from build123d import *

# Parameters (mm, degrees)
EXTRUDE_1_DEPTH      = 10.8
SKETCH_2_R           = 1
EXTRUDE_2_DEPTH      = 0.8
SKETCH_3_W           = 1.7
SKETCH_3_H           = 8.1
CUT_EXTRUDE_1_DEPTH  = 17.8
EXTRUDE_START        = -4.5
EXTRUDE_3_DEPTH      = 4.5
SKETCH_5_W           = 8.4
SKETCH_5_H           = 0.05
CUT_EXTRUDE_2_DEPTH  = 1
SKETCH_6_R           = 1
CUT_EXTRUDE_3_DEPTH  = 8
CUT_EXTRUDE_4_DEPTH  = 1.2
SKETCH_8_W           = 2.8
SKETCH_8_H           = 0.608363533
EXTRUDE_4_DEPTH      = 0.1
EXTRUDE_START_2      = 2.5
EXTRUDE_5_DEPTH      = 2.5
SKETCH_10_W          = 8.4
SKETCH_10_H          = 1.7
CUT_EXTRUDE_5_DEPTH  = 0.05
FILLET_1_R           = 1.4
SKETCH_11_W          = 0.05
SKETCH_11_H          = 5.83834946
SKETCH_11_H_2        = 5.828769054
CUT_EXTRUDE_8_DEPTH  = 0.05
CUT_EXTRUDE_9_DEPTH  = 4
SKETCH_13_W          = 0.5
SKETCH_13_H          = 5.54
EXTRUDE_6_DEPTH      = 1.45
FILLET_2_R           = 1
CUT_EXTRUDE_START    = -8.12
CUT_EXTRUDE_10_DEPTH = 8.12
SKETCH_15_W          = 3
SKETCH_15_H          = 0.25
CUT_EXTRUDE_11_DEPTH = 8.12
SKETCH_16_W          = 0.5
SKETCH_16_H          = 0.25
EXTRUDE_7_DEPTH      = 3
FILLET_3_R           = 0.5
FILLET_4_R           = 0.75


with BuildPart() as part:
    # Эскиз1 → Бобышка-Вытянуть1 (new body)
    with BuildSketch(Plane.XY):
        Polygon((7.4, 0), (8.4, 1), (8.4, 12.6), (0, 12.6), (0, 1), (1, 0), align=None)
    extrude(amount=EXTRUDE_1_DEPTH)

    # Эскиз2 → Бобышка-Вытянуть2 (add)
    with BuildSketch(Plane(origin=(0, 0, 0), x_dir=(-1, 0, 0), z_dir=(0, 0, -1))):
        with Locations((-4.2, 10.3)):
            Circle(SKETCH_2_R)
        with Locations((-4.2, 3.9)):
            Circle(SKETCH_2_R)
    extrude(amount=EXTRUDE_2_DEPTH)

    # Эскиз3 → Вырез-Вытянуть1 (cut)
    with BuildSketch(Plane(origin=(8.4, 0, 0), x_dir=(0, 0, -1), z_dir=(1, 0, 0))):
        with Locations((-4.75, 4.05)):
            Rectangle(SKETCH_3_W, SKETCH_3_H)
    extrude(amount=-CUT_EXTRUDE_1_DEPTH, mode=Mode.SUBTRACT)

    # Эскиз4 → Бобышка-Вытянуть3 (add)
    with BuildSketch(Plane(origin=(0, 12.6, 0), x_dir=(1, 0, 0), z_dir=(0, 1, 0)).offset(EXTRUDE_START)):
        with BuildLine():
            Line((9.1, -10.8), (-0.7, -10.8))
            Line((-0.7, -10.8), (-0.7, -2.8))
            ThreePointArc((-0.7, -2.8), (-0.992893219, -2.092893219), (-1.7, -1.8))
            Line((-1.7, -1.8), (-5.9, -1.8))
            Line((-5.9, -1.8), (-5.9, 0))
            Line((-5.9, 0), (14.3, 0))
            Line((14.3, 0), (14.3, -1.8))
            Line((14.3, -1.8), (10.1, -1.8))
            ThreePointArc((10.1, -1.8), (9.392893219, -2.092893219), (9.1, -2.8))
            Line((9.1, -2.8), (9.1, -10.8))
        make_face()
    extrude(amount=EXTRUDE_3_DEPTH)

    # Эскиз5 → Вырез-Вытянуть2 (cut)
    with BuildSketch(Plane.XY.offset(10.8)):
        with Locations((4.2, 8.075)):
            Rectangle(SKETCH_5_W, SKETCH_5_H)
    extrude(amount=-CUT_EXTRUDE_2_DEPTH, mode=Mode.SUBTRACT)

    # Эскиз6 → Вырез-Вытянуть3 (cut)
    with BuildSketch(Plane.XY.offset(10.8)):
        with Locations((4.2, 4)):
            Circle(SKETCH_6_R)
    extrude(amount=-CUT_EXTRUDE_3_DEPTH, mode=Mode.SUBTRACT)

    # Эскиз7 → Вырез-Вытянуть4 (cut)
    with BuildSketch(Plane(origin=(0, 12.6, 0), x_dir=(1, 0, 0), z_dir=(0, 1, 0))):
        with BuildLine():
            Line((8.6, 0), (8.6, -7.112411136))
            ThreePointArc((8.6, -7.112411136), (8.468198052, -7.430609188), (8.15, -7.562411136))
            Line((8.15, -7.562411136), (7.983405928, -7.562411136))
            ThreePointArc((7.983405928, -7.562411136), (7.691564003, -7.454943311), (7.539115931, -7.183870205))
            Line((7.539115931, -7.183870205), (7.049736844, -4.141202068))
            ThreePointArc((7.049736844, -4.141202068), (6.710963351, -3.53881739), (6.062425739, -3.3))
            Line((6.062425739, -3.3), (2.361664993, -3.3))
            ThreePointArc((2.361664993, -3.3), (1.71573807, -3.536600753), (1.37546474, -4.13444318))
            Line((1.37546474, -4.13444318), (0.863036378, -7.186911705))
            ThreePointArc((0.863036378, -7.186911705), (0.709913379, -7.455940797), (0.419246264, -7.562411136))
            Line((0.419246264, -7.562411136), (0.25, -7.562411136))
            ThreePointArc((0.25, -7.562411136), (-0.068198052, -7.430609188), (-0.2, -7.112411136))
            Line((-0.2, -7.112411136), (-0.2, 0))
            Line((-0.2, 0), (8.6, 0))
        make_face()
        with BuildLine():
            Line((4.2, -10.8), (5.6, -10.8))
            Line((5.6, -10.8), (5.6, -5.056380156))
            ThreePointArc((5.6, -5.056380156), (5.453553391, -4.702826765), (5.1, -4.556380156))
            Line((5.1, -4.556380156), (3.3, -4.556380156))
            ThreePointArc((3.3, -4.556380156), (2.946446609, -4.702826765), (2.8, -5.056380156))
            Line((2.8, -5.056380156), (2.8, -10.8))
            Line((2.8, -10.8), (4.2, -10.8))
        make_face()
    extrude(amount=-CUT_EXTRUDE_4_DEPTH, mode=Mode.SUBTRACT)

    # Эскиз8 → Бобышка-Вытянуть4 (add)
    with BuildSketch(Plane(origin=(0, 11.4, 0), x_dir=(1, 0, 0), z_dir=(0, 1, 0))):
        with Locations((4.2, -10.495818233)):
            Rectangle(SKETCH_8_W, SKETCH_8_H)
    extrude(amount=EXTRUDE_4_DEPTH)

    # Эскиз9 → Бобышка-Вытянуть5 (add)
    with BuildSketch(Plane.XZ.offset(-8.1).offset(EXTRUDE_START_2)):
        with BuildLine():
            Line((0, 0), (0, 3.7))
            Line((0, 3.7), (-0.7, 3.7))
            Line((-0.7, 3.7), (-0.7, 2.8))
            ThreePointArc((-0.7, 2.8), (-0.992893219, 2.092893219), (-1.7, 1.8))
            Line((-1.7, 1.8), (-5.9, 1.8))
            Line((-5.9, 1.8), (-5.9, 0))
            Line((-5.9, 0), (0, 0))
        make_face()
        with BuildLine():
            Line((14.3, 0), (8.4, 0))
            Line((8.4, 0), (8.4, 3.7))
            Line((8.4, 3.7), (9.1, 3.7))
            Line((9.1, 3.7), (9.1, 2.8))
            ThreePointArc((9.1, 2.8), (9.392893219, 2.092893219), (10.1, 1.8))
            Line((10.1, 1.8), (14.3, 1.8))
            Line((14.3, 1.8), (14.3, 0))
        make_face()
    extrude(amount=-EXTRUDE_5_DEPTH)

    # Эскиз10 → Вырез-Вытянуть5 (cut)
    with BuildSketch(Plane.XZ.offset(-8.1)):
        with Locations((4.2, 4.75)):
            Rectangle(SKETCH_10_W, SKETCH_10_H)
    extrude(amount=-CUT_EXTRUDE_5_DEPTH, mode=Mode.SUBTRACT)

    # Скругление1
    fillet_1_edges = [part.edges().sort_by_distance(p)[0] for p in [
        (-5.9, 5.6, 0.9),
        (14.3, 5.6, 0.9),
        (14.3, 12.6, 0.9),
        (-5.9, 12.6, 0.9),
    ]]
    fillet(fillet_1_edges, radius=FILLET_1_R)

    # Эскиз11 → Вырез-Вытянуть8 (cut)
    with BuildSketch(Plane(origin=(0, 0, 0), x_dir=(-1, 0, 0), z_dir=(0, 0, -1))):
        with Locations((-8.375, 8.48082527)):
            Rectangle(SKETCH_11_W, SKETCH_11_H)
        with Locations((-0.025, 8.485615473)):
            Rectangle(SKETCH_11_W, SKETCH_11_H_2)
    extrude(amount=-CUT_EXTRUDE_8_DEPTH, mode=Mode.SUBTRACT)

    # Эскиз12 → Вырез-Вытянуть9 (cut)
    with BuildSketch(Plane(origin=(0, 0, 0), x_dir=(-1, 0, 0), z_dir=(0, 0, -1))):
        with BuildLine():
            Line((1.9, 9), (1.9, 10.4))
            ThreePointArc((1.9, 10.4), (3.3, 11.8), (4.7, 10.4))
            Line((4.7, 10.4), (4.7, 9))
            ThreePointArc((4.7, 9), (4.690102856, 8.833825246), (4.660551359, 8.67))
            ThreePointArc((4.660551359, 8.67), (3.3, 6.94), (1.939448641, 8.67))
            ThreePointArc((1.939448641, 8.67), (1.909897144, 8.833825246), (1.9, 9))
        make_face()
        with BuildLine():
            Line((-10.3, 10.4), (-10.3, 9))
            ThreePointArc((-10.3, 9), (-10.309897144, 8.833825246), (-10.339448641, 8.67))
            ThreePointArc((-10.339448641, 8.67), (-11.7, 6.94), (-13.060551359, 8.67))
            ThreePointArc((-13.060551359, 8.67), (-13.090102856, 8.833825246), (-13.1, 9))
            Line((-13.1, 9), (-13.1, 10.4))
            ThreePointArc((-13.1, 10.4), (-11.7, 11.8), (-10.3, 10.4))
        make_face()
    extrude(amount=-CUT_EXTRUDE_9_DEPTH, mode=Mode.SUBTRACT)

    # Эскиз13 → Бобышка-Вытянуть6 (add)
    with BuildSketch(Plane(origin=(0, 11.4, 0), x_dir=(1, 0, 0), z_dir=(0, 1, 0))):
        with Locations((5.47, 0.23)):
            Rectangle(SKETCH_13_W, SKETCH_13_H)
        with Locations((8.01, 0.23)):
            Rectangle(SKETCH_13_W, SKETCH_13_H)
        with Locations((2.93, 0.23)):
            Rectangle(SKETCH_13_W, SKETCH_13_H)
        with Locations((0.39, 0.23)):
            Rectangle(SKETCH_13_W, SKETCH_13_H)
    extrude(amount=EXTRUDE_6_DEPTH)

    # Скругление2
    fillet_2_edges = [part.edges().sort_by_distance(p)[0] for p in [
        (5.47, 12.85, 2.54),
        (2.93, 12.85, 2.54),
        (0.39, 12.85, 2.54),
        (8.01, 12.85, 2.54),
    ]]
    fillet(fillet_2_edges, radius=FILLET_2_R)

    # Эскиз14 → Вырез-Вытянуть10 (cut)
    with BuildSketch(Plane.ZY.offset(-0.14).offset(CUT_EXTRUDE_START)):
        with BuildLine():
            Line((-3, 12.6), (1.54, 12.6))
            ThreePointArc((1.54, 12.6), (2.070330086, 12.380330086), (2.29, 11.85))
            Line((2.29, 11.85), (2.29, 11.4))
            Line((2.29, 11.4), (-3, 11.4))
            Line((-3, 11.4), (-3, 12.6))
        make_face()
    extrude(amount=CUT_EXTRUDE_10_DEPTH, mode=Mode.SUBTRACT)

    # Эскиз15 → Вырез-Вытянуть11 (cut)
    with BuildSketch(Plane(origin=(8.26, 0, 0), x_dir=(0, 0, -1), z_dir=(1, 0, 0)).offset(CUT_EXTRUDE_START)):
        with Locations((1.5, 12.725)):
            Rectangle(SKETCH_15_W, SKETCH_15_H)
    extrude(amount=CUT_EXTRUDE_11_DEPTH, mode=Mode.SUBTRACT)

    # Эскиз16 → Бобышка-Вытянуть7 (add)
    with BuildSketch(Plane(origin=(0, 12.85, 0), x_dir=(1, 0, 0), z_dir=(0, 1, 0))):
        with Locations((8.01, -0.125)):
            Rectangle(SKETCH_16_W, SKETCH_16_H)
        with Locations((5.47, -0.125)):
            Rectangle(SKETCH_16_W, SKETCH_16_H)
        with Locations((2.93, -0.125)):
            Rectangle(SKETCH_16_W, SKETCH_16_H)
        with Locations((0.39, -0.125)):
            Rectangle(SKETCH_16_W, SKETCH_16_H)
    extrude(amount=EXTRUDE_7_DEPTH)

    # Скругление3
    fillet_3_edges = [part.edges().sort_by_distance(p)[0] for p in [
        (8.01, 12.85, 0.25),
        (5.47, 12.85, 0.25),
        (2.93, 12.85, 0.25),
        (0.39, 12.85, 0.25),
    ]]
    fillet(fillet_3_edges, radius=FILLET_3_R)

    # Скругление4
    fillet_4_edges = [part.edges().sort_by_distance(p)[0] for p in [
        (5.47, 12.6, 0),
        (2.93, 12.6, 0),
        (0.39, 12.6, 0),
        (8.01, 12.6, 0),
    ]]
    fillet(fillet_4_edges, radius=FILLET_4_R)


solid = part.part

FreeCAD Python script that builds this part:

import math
import FreeCAD as App
import Part
import Sketcher

V = App.Vector
Q = App.Units.Quantity


def edges_at(feature, points):
    """Names of the edges that pass closest to the given points."""
    edges = feature.Shape.Edges
    near = lambda p: min(range(len(edges)), key=lambda i: edges[i].distToShape(Part.Vertex(*p))[0])
    return sorted({f"Edge{near(p) + 1}" for p in points})

doc = App.newDocument("Part")
body = doc.addObject("PartDesign::Body", "Body")

# Sketch on XY plane
sketch1 = doc.addObject("Sketcher::SketchObject", "Sketch")
body.addObject(sketch1)
sketch1.AttachmentSupport = (doc.XY_Plane, [""])
sketch1.MapMode = "FlatFace"
sketch1.addGeometry([
    Part.LineSegment(V(7.4, 0, 0), V(8.4, 1, 0)),  # 0
    Part.LineSegment(V(8.4, 1, 0), V(8.4, 12.6, 0)),  # 1
    Part.LineSegment(V(8.4, 12.6, 0), V(0, 12.6, 0)),  # 2
    Part.LineSegment(V(0, 12.6, 0), V(0, 1, 0)),  # 3
    Part.LineSegment(V(0, 1, 0), V(1, 0, 0)),  # 4
    Part.LineSegment(V(1, 0, 0), V(7.4, 0, 0)),  # 5
], False)
sketch1.addConstraint([
    Sketcher.Constraint("Coincident", 0, 2, 1, 1),
    Sketcher.Constraint("Coincident", 1, 2, 2, 1),
    Sketcher.Constraint("Coincident", 2, 2, 3, 1),
    Sketcher.Constraint("Coincident", 3, 2, 4, 1),
    Sketcher.Constraint("Coincident", 4, 2, 5, 1),
    Sketcher.Constraint("Coincident", 5, 2, 0, 1),
    Sketcher.Constraint("Vertical", 1),
    Sketcher.Constraint("Horizontal", 2),
    Sketcher.Constraint("Vertical", 3),
    Sketcher.Constraint("Horizontal", 5),
    Sketcher.Constraint("PointOnObject", 2, 2, -2),
    Sketcher.Constraint("PointOnObject", 4, 2, -1),
    Sketcher.Constraint("Perpendicular", 0, 4),
    Sketcher.Constraint("Horizontal", 0, 2, 3, 2),
    Sketcher.Constraint("Equal", 0, 4),
    Sketcher.Constraint("DistanceX", 2, 2, 2, 1, Q("8.4 mm")),
    Sketcher.Constraint("DistanceX", 5, 1, 5, 2, Q("6.4 mm")),
    Sketcher.Constraint("DistanceY", 1, 1, 1, 2, Q("11.6 mm")),
])
pad1 = doc.addObject("PartDesign::Pad", "Pad")
body.addObject(pad1)
pad1.Profile = sketch1
pad1.Length = 10.8

# Sketch on XY plane
sketch2 = doc.addObject("Sketcher::SketchObject", "Sketch001")
body.addObject(sketch2)
sketch2.AttachmentSupport = (doc.XY_Plane, [""])
sketch2.MapMode = "FlatFace"
sketch2.addGeometry([
    Part.Circle(V(4.2, 10.3, 0), V(0, 0, 1), 1),
    Part.Circle(V(4.2, 3.9, 0), V(0, 0, 1), 1),
], False)
sketch2.addConstraint([
    Sketcher.Constraint("Equal", 0, 1),
    Sketcher.Constraint("Vertical", 0, 3, 1, 3),
    Sketcher.Constraint("Diameter", 0, Q("2 mm")),
    Sketcher.Constraint("DistanceX", -1, 1, 0, 3, Q("4.2 mm")),
    Sketcher.Constraint("DistanceY", -1, 1, 0, 3, Q("10.3 mm")),
    Sketcher.Constraint("DistanceY", -1, 1, 1, 3, Q("3.9 mm")),
])
pad2 = doc.addObject("PartDesign::Pad", "Pad001")
body.addObject(pad2)
pad2.Profile = sketch2
pad2.Length = 0.8
pad2.Reversed = True

# Sketch on YZ plane
sketch3 = doc.addObject("Sketcher::SketchObject", "Sketch002")
body.addObject(sketch3)
sketch3.AttachmentSupport = (doc.YZ_Plane, [""])
sketch3.MapMode = "FlatFace"
sketch3.AttachmentOffset = App.Placement(V(0, 0, 8.4), App.Rotation())
sketch3.addGeometry([
    Part.LineSegment(V(8.1, 5.6, 0), V(0, 5.6, 0)),
    Part.LineSegment(V(0, 5.6, 0), V(0, 3.9, 0)),
    Part.LineSegment(V(0, 3.9, 0), V(8.1, 3.9, 0)),
    Part.LineSegment(V(8.1, 3.9, 0), V(8.1, 5.6, 0)),
], False)
sketch3.addConstraint([
    Sketcher.Constraint("Coincident", 0, 2, 1, 1),
    Sketcher.Constraint("Coincident", 1, 2, 2, 1),
    Sketcher.Constraint("Coincident", 2, 2, 3, 1),
    Sketcher.Constraint("Coincident", 3, 2, 0, 1),
    Sketcher.Constraint("Horizontal", 0),
    Sketcher.Constraint("Vertical", 1),
    Sketcher.Constraint("Horizontal", 2),
    Sketcher.Constraint("Vertical", 3),
    Sketcher.Constraint("PointOnObject", 0, 2, -2),
    Sketcher.Constraint("DistanceX", 0, 2, 0, 1, Q("8.1 mm")),
    Sketcher.Constraint("DistanceY", 1, 2, 1, 1, Q("1.7 mm")),
    Sketcher.Constraint("DistanceY", -1, 1, 0, 2, Q("5.6 mm")),
])
pocket1 = doc.addObject("PartDesign::Pocket", "Pocket")
body.addObject(pocket1)
pocket1.Profile = sketch3
pocket1.Length = 17.8

# Sketch on XZ plane
sketch4 = doc.addObject("Sketcher::SketchObject", "Sketch003")
body.addObject(sketch4)
sketch4.AttachmentSupport = (doc.XZ_Plane, [""])
sketch4.MapMode = "FlatFace"
sketch4.AttachmentOffset = App.Placement(V(0, 0, -8.1), App.Rotation())
sketch4.addGeometry([
    Part.LineSegment(V(-0.7, 10.8, 0), V(9.1, 10.8, 0)),  # 0
    Part.LineSegment(V(9.1, 10.8, 0), V(9.1, 2.8, 0)),  # 1
    Part.ArcOfCircle(Part.Circle(V(10.1, 2.8, 0), V(0, 0, 1), 1), math.radians(-180), math.radians(-90)),  # 2
    Part.LineSegment(V(10.1, 1.8, 0), V(14.3, 1.8, 0)),  # 3
    Part.LineSegment(V(14.3, 1.8, 0), V(14.3, 0, 0)),  # 4
    Part.LineSegment(V(14.3, 0, 0), V(-5.9, 0, 0)),  # 5
    Part.LineSegment(V(-5.9, 0, 0), V(-5.9, 1.8, 0)),  # 6
    Part.LineSegment(V(-5.9, 1.8, 0), V(-1.7, 1.8, 0)),  # 7
    Part.ArcOfCircle(Part.Circle(V(-1.7, 2.8, 0), V(0, 0, 1), 1), math.radians(-90), math.radians(0)),  # 8
    Part.LineSegment(V(-0.7, 2.8, 0), V(-0.7, 10.8, 0)),  # 9
], False)
sketch4.addConstraint([
    Sketcher.Constraint("Coincident", 0, 2, 1, 1),
    Sketcher.Constraint("Tangent", 1, 2, 2, 1),
    Sketcher.Constraint("Tangent", 2, 2, 3, 1),
    Sketcher.Constraint("Coincident", 3, 2, 4, 1),
    Sketcher.Constraint("Coincident", 4, 2, 5, 1),
    Sketcher.Constraint("Coincident", 5, 2, 6, 1),
    Sketcher.Constraint("Coincident", 6, 2, 7, 1),
    Sketcher.Constraint("Tangent", 7, 2, 8, 1),
    Sketcher.Constraint("Tangent", 8, 2, 9, 1),
    Sketcher.Constraint("Coincident", 9, 2, 0, 1),
    Sketcher.Constraint("Horizontal", 0),
    Sketcher.Constraint("Vertical", 1),
    Sketcher.Constraint("Horizontal", 3),
    Sketcher.Constraint("Vertical", 4),
    Sketcher.Constraint("Horizontal", 5),
    Sketcher.Constraint("Vertical", 6),
    Sketcher.Constraint("Horizontal", 7),
    Sketcher.Constraint("Vertical", 9),
    Sketcher.Constraint("Equal", 2, 8),
    Sketcher.Constraint("PointOnObject", 4, 2, -1),
    Sketcher.Constraint("Horizontal", 2, 3, 8, 3),
    Sketcher.Constraint("Equal", 3, 7),
    Sketcher.Constraint("Radius", 2, Q("1 mm")),
    Sketcher.Constraint("DistanceY", 1, 2, 1, 1, Q("8 mm")),
    Sketcher.Constraint("DistanceX", 0, 1, 0, 2, Q("9.8 mm")),
    Sketcher.Constraint("DistanceX", 3, 1, 3, 2, Q("4.2 mm")),
    Sketcher.Constraint("DistanceY", 4, 2, 4, 1, Q("1.8 mm")),
    Sketcher.Constraint("DistanceX", -1, 1, 2, 3, Q("10.1 mm")),
])
pad3 = doc.addObject("PartDesign::Pad", "Pad002")
body.addObject(pad3)
pad3.Profile = sketch4
pad3.Length = 4.5
pad3.Reversed = True

# Sketch on XY plane
sketch5 = doc.addObject("Sketcher::SketchObject", "Sketch004")
body.addObject(sketch5)
sketch5.AttachmentSupport = (doc.XY_Plane, [""])
sketch5.MapMode = "FlatFace"
sketch5.AttachmentOffset = App.Placement(V(0, 0, 10.8), App.Rotation())
sketch5.addGeometry([
    Part.LineSegment(V(0, 8.1, 0), V(0, 8.05, 0)),
    Part.LineSegment(V(0, 8.05, 0), V(8.4, 8.05, 0)),
    Part.LineSegment(V(8.4, 8.05, 0), V(8.4, 8.1, 0)),
    Part.LineSegment(V(8.4, 8.1, 0), V(0, 8.1, 0)),
], False)
sketch5.addConstraint([
    Sketcher.Constraint("Coincident", 0, 2, 1, 1),
    Sketcher.Constraint("Coincident", 1, 2, 2, 1),
    Sketcher.Constraint("Coincident", 2, 2, 3, 1),
    Sketcher.Constraint("Coincident", 3, 2, 0, 1),
    Sketcher.Constraint("Vertical", 0),
    Sketcher.Constraint("Horizontal", 1),
    Sketcher.Constraint("Vertical", 2),
    Sketcher.Constraint("Horizontal", 3),
    Sketcher.Constraint("PointOnObject", 0, 2, -2),
    Sketcher.Constraint("DistanceX", 1, 1, 1, 2, Q("8.4 mm")),
    Sketcher.Constraint("DistanceY", 0, 2, 0, 1, Q("0.05 mm")),
    Sketcher.Constraint("DistanceY", -1, 1, 2, 2, Q("8.1 mm")),
])
pocket2 = doc.addObject("PartDesign::Pocket", "Pocket001")
body.addObject(pocket2)
pocket2.Profile = sketch5
pocket2.Length = 1

# Sketch on XY plane
sketch6 = doc.addObject("Sketcher::SketchObject", "Sketch005")
body.addObject(sketch6)
sketch6.AttachmentSupport = (doc.XY_Plane, [""])
sketch6.MapMode = "FlatFace"
sketch6.AttachmentOffset = App.Placement(V(0, 0, 10.8), App.Rotation())
sketch6.addGeometry(Part.Circle(V(4.2, 4, 0), V(0, 0, 1), 1), False)
sketch6.addConstraint([
    Sketcher.Constraint("Diameter", 0, Q("2 mm")),
    Sketcher.Constraint("DistanceY", -1, 1, 0, 3, Q("4 mm")),
    Sketcher.Constraint("DistanceX", -1, 1, 0, 3, Q("4.2 mm")),
])
pocket3 = doc.addObject("PartDesign::Pocket", "Pocket002")
body.addObject(pocket3)
pocket3.Profile = sketch6
pocket3.Length = 8

# Sketch on XZ plane
sketch7 = doc.addObject("Sketcher::SketchObject", "Sketch006")
body.addObject(sketch7)
sketch7.AttachmentSupport = (doc.XZ_Plane, [""])
sketch7.MapMode = "FlatFace"
sketch7.AttachmentOffset = App.Placement(V(0, 0, -12.6), App.Rotation())
sketch7.addGeometry([
    Part.LineSegment(V(8.6, 7.11, 0), V(8.6, 0, 0)),  # 0
    Part.LineSegment(V(8.6, 0, 0), V(-0.2, 0, 0)),  # 1
    Part.LineSegment(V(-0.2, 0, 0), V(-0.2, 7.11, 0)),  # 2
    Part.ArcOfCircle(Part.Circle(V(0.25, 7.11, 0), V(0, 0, 1), 0.45), math.radians(90), math.radians(180)),  # 3
    Part.LineSegment(V(0.25, 7.56, 0), V(0.42, 7.56, 0)),  # 4
    Part.ArcOfCircle(Part.Circle(V(0.42, 7.11, 0), V(0, 0, 1), 0.45), math.radians(10), math.radians(90)),  # 5
    Part.LineSegment(V(0.86, 7.19, 0), V(1.38, 4.13, 0)),  # 6
    Part.ArcOfCircle(Part.Circle(V(2.36, 4.3, 0), V(0, 0, 1), 1), math.radians(-170), math.radians(-90)),  # 7
    Part.LineSegment(V(2.36, 3.3, 0), V(6.06, 3.3, 0)),  # 8
    Part.ArcOfCircle(Part.Circle(V(6.06, 4.3, 0), V(0, 0, 1), 1), math.radians(-90), math.radians(-9)),  # 9
    Part.LineSegment(V(7.05, 4.14, 0), V(7.54, 7.18, 0)),  # 10
    Part.ArcOfCircle(Part.Circle(V(7.98, 7.11, 0), V(0, 0, 1), 0.45), math.radians(90), math.radians(171)),  # 11
    Part.LineSegment(V(7.98, 7.56, 0), V(8.15, 7.56, 0)),  # 12
    Part.ArcOfCircle(Part.Circle(V(8.15, 7.11, 0), V(0, 0, 1), 0.45), math.radians(0), math.radians(90)),  # 13
    Part.LineSegment(V(5.6, 10.8, 0), V(5.6, 5.06, 0)),  # 14
    Part.ArcOfCircle(Part.Circle(V(5.1, 5.06, 0), V(0, 0, 1), 0.5), math.radians(-90), math.radians(0)),  # 15
    Part.LineSegment(V(5.1, 4.56, 0), V(3.3, 4.56, 0)),  # 16
    Part.ArcOfCircle(Part.Circle(V(3.3, 5.06, 0), V(0, 0, 1), 0.5), math.radians(180), math.radians(270)),  # 17
    Part.LineSegment(V(2.8, 5.06, 0), V(2.8, 10.8, 0)),  # 18
    Part.LineSegment(V(2.8, 10.8, 0), V(5.6, 10.8, 0)),  # 19
], False)
sketch7.addConstraint([
    Sketcher.Constraint("Coincident", 0, 2, 1, 1),
    Sketcher.Constraint("Coincident", 1, 2, 2, 1),
    Sketcher.Constraint("Tangent", 2, 2, 3, 2),
    Sketcher.Constraint("Tangent", 3, 1, 4, 1),
    Sketcher.Constraint("Tangent", 4, 2, 5, 2),
    Sketcher.Constraint("Tangent", 5, 1, 6, 1),
    Sketcher.Constraint("Tangent", 6, 2, 7, 1),
    Sketcher.Constraint("Tangent", 7, 2, 8, 1),
    Sketcher.Constraint("Tangent", 8, 2, 9, 1),
    Sketcher.Constraint("Tangent", 9, 2, 10, 1),
    Sketcher.Constraint("Tangent", 10, 2, 11, 2),
    Sketcher.Constraint("Tangent", 11, 1, 12, 1),
    Sketcher.Constraint("Tangent", 12, 2, 13, 2),
    Sketcher.Constraint("Tangent", 13, 1, 0, 1),
    Sketcher.Constraint("Tangent", 14, 2, 15, 2),
    Sketcher.Constraint("Tangent", 15, 1, 16, 1),
    Sketcher.Constraint("Tangent", 16, 2, 17, 2),
    Sketcher.Constraint("Tangent", 17, 1, 18, 1),
    Sketcher.Constraint("Coincident", 18, 2, 19, 1),
    Sketcher.Constraint("Coincident", 19, 2, 14, 1),
    Sketcher.Constraint("Vertical", 0),
    Sketcher.Constraint("Horizontal", 1),
    Sketcher.Constraint("Vertical", 2),
    Sketcher.Constraint("Horizontal", 4),
    Sketcher.Constraint("Horizontal", 8),
    Sketcher.Constraint("Horizontal", 12),
    Sketcher.Constraint("Vertical", 14),
    Sketcher.Constraint("Horizontal", 16),
    Sketcher.Constraint("Vertical", 18),
    Sketcher.Constraint("Horizontal", 19),
    Sketcher.Constraint("Equal", 3, 5),
    Sketcher.Constraint("Equal", 7, 9),
    Sketcher.Constraint("Equal", 5, 11),
    Sketcher.Constraint("Equal", 11, 13),
    Sketcher.Constraint("Equal", 15, 17),
    Sketcher.Constraint("PointOnObject", 0, 2, -1),
    Sketcher.Constraint("Horizontal", 5, 3, 11, 3),
    Sketcher.Constraint("Radius", 7, Q("1 mm")),
    Sketcher.Constraint("Radius", 15, Q("0.5 mm")),
    Sketcher.Constraint("Radius", 3, Q("0.45 mm")),
    Sketcher.Constraint("DistanceX", 1, 2, 1, 1, Q("8.8 mm")),
    Sketcher.Constraint("DistanceX", 16, 2, 16, 1, Q("1.8 mm")),
    Sketcher.Constraint("DistanceY", -1, 1, 7, 3, Q("4.3 mm")),
    Sketcher.Constraint("DistanceX", -1, 1, 15, 3, Q("5.1 mm")),
    Sketcher.Constraint("DistanceX", -1, 1, 0, 2, Q("8.6 mm")),
    Sketcher.Constraint("DistanceY", -1, 1, 18, 2, Q("10.8 mm")),
    Sketcher.Constraint("DistanceX", 8, 1, 8, 2, Q("3.700761 mm")),
    Sketcher.Constraint("DistanceY", 0, 2, 0, 1, Q("7.112411 mm")),
    Sketcher.Constraint("DistanceY", 14, 2, 14, 1, Q("5.74362 mm")),
    Sketcher.Constraint("DistanceY", 5, 3, 5, 1, Q("0.074501 mm")),
    Sketcher.Constraint("DistanceX", 4, 1, 4, 2, Q("0.169246 mm")),
    Sketcher.Constraint("DistanceX", 12, 1, 12, 2, Q("0.166594 mm")),
])
pocket4 = doc.addObject("PartDesign::Pocket", "Pocket003")
body.addObject(pocket4)
pocket4.Profile = sketch7
pocket4.Length = 1.2
pocket4.Reversed = True

# Sketch on XZ plane
sketch8 = doc.addObject("Sketcher::SketchObject", "Sketch007")
body.addObject(sketch8)
sketch8.AttachmentSupport = (doc.XZ_Plane, [""])
sketch8.MapMode = "FlatFace"
sketch8.AttachmentOffset = App.Placement(V(0, 0, -11.4), App.Rotation())
sketch8.addGeometry([
    Part.LineSegment(V(2.8, 10.2, 0), V(2.8, 10.8, 0)),
    Part.LineSegment(V(2.8, 10.8, 0), V(5.6, 10.8, 0)),
    Part.LineSegment(V(5.6, 10.8, 0), V(5.6, 10.2, 0)),
    Part.LineSegment(V(5.6, 10.2, 0), V(2.8, 10.2, 0)),
], False)
sketch8.addConstraint([
    Sketcher.Constraint("Coincident", 0, 2, 1, 1),
    Sketcher.Constraint("Coincident", 1, 2, 2, 1),
    Sketcher.Constraint("Coincident", 2, 2, 3, 1),
    Sketcher.Constraint("Coincident", 3, 2, 0, 1),
    Sketcher.Constraint("Vertical", 0),
    Sketcher.Constraint("Horizontal", 1),
    Sketcher.Constraint("Vertical", 2),
    Sketcher.Constraint("Horizontal", 3),
    Sketcher.Constraint("DistanceX", 1, 1, 1, 2, Q("2.8 mm")),
    Sketcher.Constraint("DistanceX", -1, 1, 0, 2, Q("2.8 mm")),
    Sketcher.Constraint("DistanceY", -1, 1, 0, 2, Q("10.8 mm")),
    Sketcher.Constraint("DistanceY", 0, 1, 0, 2, Q("0.608364 mm")),
])
pad4 = doc.addObject("PartDesign::Pad", "Pad003")
body.addObject(pad4)
pad4.Profile = sketch8
pad4.Length = 0.1
pad4.Reversed = True

# Sketch on XZ plane
sketch9 = doc.addObject("Sketcher::SketchObject", "Sketch008")
body.addObject(sketch9)
sketch9.AttachmentSupport = (doc.XZ_Plane, [""])
sketch9.MapMode = "FlatFace"
sketch9.AttachmentOffset = App.Placement(V(0, 0, -5.6), App.Rotation())
sketch9.addGeometry([
    Part.LineSegment(V(0, 0, 0), V(0, 3.7, 0)),  # 0
    Part.LineSegment(V(0, 3.7, 0), V(-0.7, 3.7, 0)),  # 1
    Part.LineSegment(V(-0.7, 3.7, 0), V(-0.7, 2.8, 0)),  # 2
    Part.ArcOfCircle(Part.Circle(V(-1.7, 2.8, 0), V(0, 0, 1), 1), math.radians(-90), math.radians(0)),  # 3
    Part.LineSegment(V(-1.7, 1.8, 0), V(-5.9, 1.8, 0)),  # 4
    Part.LineSegment(V(-5.9, 1.8, 0), V(-5.9, 0, 0)),  # 5
    Part.LineSegment(V(-5.9, 0, 0), V(0, 0, 0)),  # 6
    Part.LineSegment(V(8.4, 0, 0), V(14.3, 0, 0)),  # 7
    Part.LineSegment(V(14.3, 0, 0), V(14.3, 1.8, 0)),  # 8
    Part.LineSegment(V(14.3, 1.8, 0), V(10.1, 1.8, 0)),  # 9
    Part.ArcOfCircle(Part.Circle(V(10.1, 2.8, 0), V(0, 0, 1), 1), math.radians(-180), math.radians(-90)),  # 10
    Part.LineSegment(V(9.1, 2.8, 0), V(9.1, 3.7, 0)),  # 11
    Part.LineSegment(V(9.1, 3.7, 0), V(8.4, 3.7, 0)),  # 12
    Part.LineSegment(V(8.4, 3.7, 0), V(8.4, 0, 0)),  # 13
], False)
sketch9.addConstraint([
    Sketcher.Constraint("Coincident", 0, 2, 1, 1),
    Sketcher.Constraint("Coincident", 1, 2, 2, 1),
    Sketcher.Constraint("Tangent", 2, 2, 3, 2),
    Sketcher.Constraint("Tangent", 3, 1, 4, 1),
    Sketcher.Constraint("Coincident", 4, 2, 5, 1),
    Sketcher.Constraint("Coincident", 5, 2, 6, 1),
    Sketcher.Constraint("Coincident", 6, 2, 0, 1),
    Sketcher.Constraint("Coincident", 7, 2, 8, 1),
    Sketcher.Constraint("Coincident", 8, 2, 9, 1),
    Sketcher.Constraint("Tangent", 9, 2, 10, 2),
    Sketcher.Constraint("Tangent", 10, 1, 11, 1),
    Sketcher.Constraint("Coincident", 11, 2, 12, 1),
    Sketcher.Constraint("Coincident", 12, 2, 13, 1),
    Sketcher.Constraint("Coincident", 13, 2, 7, 1),
    Sketcher.Constraint("Vertical", 0),
    Sketcher.Constraint("Horizontal", 1),
    Sketcher.Constraint("Vertical", 2),
    Sketcher.Constraint("Horizontal", 4),
    Sketcher.Constraint("Vertical", 5),
    Sketcher.Constraint("Horizontal", 6),
    Sketcher.Constraint("Horizontal", 7),
    Sketcher.Constraint("Vertical", 8),
    Sketcher.Constraint("Horizontal", 9),
    Sketcher.Constraint("Vertical", 11),
    Sketcher.Constraint("Horizontal", 12),
    Sketcher.Constraint("Vertical", 13),
    Sketcher.Constraint("Coincident", 6, 2, -1, 1),
    Sketcher.Constraint("Equal", 3, 10),
    Sketcher.Constraint("PointOnObject", 7, 2, -1),
    Sketcher.Constraint("Horizontal", 3, 3, 10, 3),
    Sketcher.Constraint("Horizontal", 1, 2, 11, 2),
    Sketcher.Constraint("Equal", 6, 7),
    Sketcher.Constraint("Equal", 4, 9),
    Sketcher.Constraint("Radius", 3, Q("1 mm")),
    Sketcher.Constraint("DistanceX", 1, 2, 1, 1, Q("0.7 mm")),
    Sketcher.Constraint("DistanceX", 4, 2, 4, 1, Q("4.2 mm")),
    Sketcher.Constraint("DistanceY", 0, 1, 0, 2, Q("3.7 mm")),
    Sketcher.Constraint("DistanceY", 2, 2, 2, 1, Q("0.9 mm")),
    Sketcher.Constraint("DistanceX", 2, 2, 7, 2, Q("15 mm")),
])
pad5 = doc.addObject("PartDesign::Pad", "Pad004")
body.addObject(pad5)
pad5.Profile = sketch9
pad5.Length = 2.5
pad5.Reversed = True

# Sketch on XZ plane
sketch10 = doc.addObject("Sketcher::SketchObject", "Sketch009")
body.addObject(sketch10)
sketch10.AttachmentSupport = (doc.XZ_Plane, [""])
sketch10.MapMode = "FlatFace"
sketch10.AttachmentOffset = App.Placement(V(0, 0, -8.1), App.Rotation())
sketch10.addGeometry([
    Part.LineSegment(V(0, 5.6, 0), V(0, 3.9, 0)),
    Part.LineSegment(V(0, 3.9, 0), V(8.4, 3.9, 0)),
    Part.LineSegment(V(8.4, 3.9, 0), V(8.4, 5.6, 0)),
    Part.LineSegment(V(8.4, 5.6, 0), V(0, 5.6, 0)),
], False)
sketch10.addConstraint([
    Sketcher.Constraint("Coincident", 0, 2, 1, 1),
    Sketcher.Constraint("Coincident", 1, 2, 2, 1),
    Sketcher.Constraint("Coincident", 2, 2, 3, 1),
    Sketcher.Constraint("Coincident", 3, 2, 0, 1),
    Sketcher.Constraint("Vertical", 0),
    Sketcher.Constraint("Horizontal", 1),
    Sketcher.Constraint("Vertical", 2),
    Sketcher.Constraint("Horizontal", 3),
    Sketcher.Constraint("PointOnObject", 0, 2, -2),
    Sketcher.Constraint("DistanceX", 1, 1, 1, 2, Q("8.4 mm")),
    Sketcher.Constraint("DistanceY", 0, 2, 0, 1, Q("1.7 mm")),
    Sketcher.Constraint("DistanceY", -1, 1, 0, 2, Q("3.9 mm")),
])
pocket5 = doc.addObject("PartDesign::Pocket", "Pocket004")
body.addObject(pocket5)
pocket5.Profile = sketch10
pocket5.Length = 0.05
doc.recompute()

fillet = doc.addObject("PartDesign::Fillet", "Fillet")
body.addObject(fillet)
fillet.Base = (pocket5, edges_at(pocket5, [
    (-5.9, 5.6, 0.9),
    (14.3, 5.6, 0.9),
    (14.3, 12.6, 0.9),
    (-5.9, 12.6, 0.9),
]))
fillet.Radius = 1.4

# Sketch on XY plane
sketch11 = doc.addObject("Sketcher::SketchObject", "Sketch010")
body.addObject(sketch11)
sketch11.AttachmentSupport = (doc.XY_Plane, [""])
sketch11.MapMode = "FlatFace"
sketch11.addGeometry([
    Part.LineSegment(V(8.4, 11.4, 0), V(8.4, 5.56, 0)),  # 0
    Part.LineSegment(V(8.4, 5.56, 0), V(8.35, 5.56, 0)),  # 1
    Part.LineSegment(V(8.35, 5.56, 0), V(8.35, 11.4, 0)),  # 2
    Part.LineSegment(V(8.35, 11.4, 0), V(8.4, 11.4, 0)),  # 3
    Part.LineSegment(V(0.05, 11.4, 0), V(0.05, 5.57, 0)),  # 4
    Part.LineSegment(V(0.05, 5.57, 0), V(0, 5.57, 0)),  # 5
    Part.LineSegment(V(0, 5.57, 0), V(0, 11.4, 0)),  # 6
    Part.LineSegment(V(0, 11.4, 0), V(0.05, 11.4, 0)),  # 7
], False)
sketch11.addConstraint([
    Sketcher.Constraint("Coincident", 0, 2, 1, 1),
    Sketcher.Constraint("Coincident", 1, 2, 2, 1),
    Sketcher.Constraint("Coincident", 2, 2, 3, 1),
    Sketcher.Constraint("Coincident", 3, 2, 0, 1),
    Sketcher.Constraint("Coincident", 4, 2, 5, 1),
    Sketcher.Constraint("Coincident", 5, 2, 6, 1),
    Sketcher.Constraint("Coincident", 6, 2, 7, 1),
    Sketcher.Constraint("Coincident", 7, 2, 4, 1),
    Sketcher.Constraint("Vertical", 0),
    Sketcher.Constraint("Horizontal", 1),
    Sketcher.Constraint("Vertical", 2),
    Sketcher.Constraint("Horizontal", 3),
    Sketcher.Constraint("Vertical", 4),
    Sketcher.Constraint("Horizontal", 5),
    Sketcher.Constraint("Vertical", 6),
    Sketcher.Constraint("Horizontal", 7),
    Sketcher.Constraint("PointOnObject", 5, 2, -2),
    Sketcher.Constraint("Horizontal", 3, 2, 6, 2),
    Sketcher.Constraint("Equal", 3, 5),
    Sketcher.Constraint("DistanceX", 1, 2, 1, 1, Q("0.05 mm")),
    Sketcher.Constraint("DistanceX", -1, 1, 0, 2, Q("8.4 mm")),
    Sketcher.Constraint("DistanceY", -1, 1, 2, 2, Q("11.4 mm")),
    Sketcher.Constraint("DistanceY", 0, 2, 0, 1, Q("5.838349 mm")),
    Sketcher.Constraint("DistanceY", 4, 2, 4, 1, Q("5.828769 mm")),
])
pocket6 = doc.addObject("PartDesign::Pocket", "Pocket005")
body.addObject(pocket6)
pocket6.Profile = sketch11
pocket6.Length = 0.05
pocket6.Reversed = True

# Sketch on XY plane
sketch12 = doc.addObject("Sketcher::SketchObject", "Sketch011")
body.addObject(sketch12)
sketch12.AttachmentSupport = (doc.XY_Plane, [""])
sketch12.MapMode = "FlatFace"
sketch12.addGeometry([
    Part.LineSegment(V(-1.9, 10.4, 0), V(-1.9, 9, 0)),  # 0
    Part.ArcOfCircle(Part.Circle(V(-3.3, 9, 0), V(0, 0, 1), 1.4), math.radians(-13.63), math.radians(0)),  # 1
    Part.ArcOfCircle(Part.Circle(V(-3.3, 8.34, 0), V(0, 0, 1), 1.4), math.radians(166), math.radians(374)),  # 2
    Part.ArcOfCircle(Part.Circle(V(-3.3, 9, 0), V(0, 0, 1), 1.4), math.radians(-180), math.radians(-166.37)),  # 3
    Part.LineSegment(V(-4.7, 9, 0), V(-4.7, 10.4, 0)),  # 4
    Part.ArcOfCircle(Part.Circle(V(-3.3, 10.4, 0), V(0, 0, 1), 1.4), math.radians(0), math.radians(180)),  # 5
    Part.LineSegment(V(10.3, 9, 0), V(10.3, 10.4, 0)),  # 6
    Part.ArcOfCircle(Part.Circle(V(11.7, 10.4, 0), V(0, 0, 1), 1.4), math.radians(0), math.radians(180)),  # 7
    Part.LineSegment(V(13.1, 10.4, 0), V(13.1, 9, 0)),  # 8
    Part.ArcOfCircle(Part.Circle(V(11.7, 9, 0), V(0, 0, 1), 1.4), math.radians(-13.63), math.radians(0)),  # 9
    Part.ArcOfCircle(Part.Circle(V(11.7, 8.34, 0), V(0, 0, 1), 1.4), math.radians(166), math.radians(374)),  # 10
    Part.ArcOfCircle(Part.Circle(V(11.7, 9, 0), V(0, 0, 1), 1.4), math.radians(-180), math.radians(-166.37)),  # 11
], False)
sketch12.addConstraint([
    Sketcher.Constraint("Tangent", 0, 2, 1, 2),
    Sketcher.Constraint("Coincident", 1, 1, 2, 2),
    Sketcher.Constraint("Coincident", 2, 1, 3, 2),
    Sketcher.Constraint("Tangent", 3, 1, 4, 1),
    Sketcher.Constraint("Tangent", 4, 2, 5, 2),
    Sketcher.Constraint("Tangent", 5, 1, 0, 1),
    Sketcher.Constraint("Tangent", 6, 2, 7, 2),
    Sketcher.Constraint("Tangent", 7, 1, 8, 1),
    Sketcher.Constraint("Tangent", 8, 2, 9, 2),
    Sketcher.Constraint("Coincident", 9, 1, 10, 2),
    Sketcher.Constraint("Coincident", 10, 1, 11, 2),
    Sketcher.Constraint("Tangent", 11, 1, 6, 1),
    Sketcher.Constraint("Vertical", 0),
    Sketcher.Constraint("Vertical", 4),
    Sketcher.Constraint("Vertical", 6),
    Sketcher.Constraint("Vertical", 8),
    Sketcher.Constraint("Coincident", 3, 3, 1, 3),
    Sketcher.Constraint("Coincident", 11, 3, 9, 3),
    Sketcher.Constraint("Equal", 1, 2),
    Sketcher.Constraint("Equal", 2, 3),
    Sketcher.Constraint("Equal", 5, 7),
    Sketcher.Constraint("Equal", 7, 9),
    Sketcher.Constraint("Equal", 9, 10),
    Sketcher.Constraint("Horizontal", 5, 3, 7, 3),
    Sketcher.Constraint("Horizontal", 3, 3, 9, 3),
    Sketcher.Constraint("Horizontal", 2, 3, 10, 3),
    Sketcher.Constraint("Horizontal", 1, 1, 2, 1),
    Sketcher.Constraint("Horizontal", 2, 1, 9, 1),
    Sketcher.Constraint("Radius", 1, Q("1.4 mm")),
    Sketcher.Constraint("DistanceY", 0, 2, 0, 1, Q("1.4 mm")),
    Sketcher.Constraint("DistanceY", -1, 1, 1, 3, Q("9 mm")),
    Sketcher.Constraint("DistanceX", 5, 3, 7, 3, Q("15 mm")),
    Sketcher.Constraint("DistanceX", 1, 3, -1, 1, Q("3.3 mm")),
    Sketcher.Constraint("DistanceY", -1, 1, 2, 3, Q("8.34 mm")),
])
pocket7 = doc.addObject("PartDesign::Pocket", "Pocket006")
body.addObject(pocket7)
pocket7.Profile = sketch12
pocket7.Length = 4
pocket7.Reversed = True

# Sketch on XZ plane
sketch13 = doc.addObject("Sketcher::SketchObject", "Sketch012")
body.addObject(sketch13)
sketch13.AttachmentSupport = (doc.XZ_Plane, [""])
sketch13.MapMode = "FlatFace"
sketch13.AttachmentOffset = App.Placement(V(0, 0, -11.4), App.Rotation())
sketch13.addGeometry([
    Part.LineSegment(V(5.2, -3, 0), V(5.2, 2.5, 0)),  # 0
    Part.LineSegment(V(5.2, 2.5, 0), V(5.7, 2.5, 0)),  # 1
    Part.LineSegment(V(5.7, 2.5, 0), V(5.7, -3, 0)),  # 2
    Part.LineSegment(V(5.7, -3, 0), V(5.2, -3, 0)),  # 3
    Part.LineSegment(V(7.8, -3, 0), V(7.8, 2.5, 0)),  # 4
    Part.LineSegment(V(7.8, 2.5, 0), V(8.3, 2.5, 0)),  # 5
    Part.LineSegment(V(8.3, 2.5, 0), V(8.3, -3, 0)),  # 6
    Part.LineSegment(V(8.3, -3, 0), V(7.8, -3, 0)),  # 7
    Part.LineSegment(V(2.7, -3, 0), V(2.7, 2.5, 0)),  # 8
    Part.LineSegment(V(2.7, 2.5, 0), V(3.2, 2.5, 0)),  # 9
    Part.LineSegment(V(3.2, 2.5, 0), V(3.2, -3, 0)),  # 10
    Part.LineSegment(V(3.2, -3, 0), V(2.7, -3, 0)),  # 11
    Part.LineSegment(V(0.1, -3, 0), V(0.1, 2.5, 0)),  # 12
    Part.LineSegment(V(0.1, 2.5, 0), V(0.6, 2.5, 0)),  # 13
    Part.LineSegment(V(0.6, 2.5, 0), V(0.6, -3, 0)),  # 14
    Part.LineSegment(V(0.6, -3, 0), V(0.1, -3, 0)),  # 15
], False)
sketch13.addConstraint([
    Sketcher.Constraint("Coincident", 0, 2, 1, 1),
    Sketcher.Constraint("Coincident", 1, 2, 2, 1),
    Sketcher.Constraint("Coincident", 2, 2, 3, 1),
    Sketcher.Constraint("Coincident", 3, 2, 0, 1),
    Sketcher.Constraint("Coincident", 4, 2, 5, 1),
    Sketcher.Constraint("Coincident", 5, 2, 6, 1),
    Sketcher.Constraint("Coincident", 6, 2, 7, 1),
    Sketcher.Constraint("Coincident", 7, 2, 4, 1),
    Sketcher.Constraint("Coincident", 8, 2, 9, 1),
    Sketcher.Constraint("Coincident", 9, 2, 10, 1),
    Sketcher.Constraint("Coincident", 10, 2, 11, 1),
    Sketcher.Constraint("Coincident", 11, 2, 8, 1),
    Sketcher.Constraint("Coincident", 12, 2, 13, 1),
    Sketcher.Constraint("Coincident", 13, 2, 14, 1),
    Sketcher.Constraint("Coincident", 14, 2, 15, 1),
    Sketcher.Constraint("Coincident", 15, 2, 12, 1),
    Sketcher.Constraint("Vertical", 0),
    Sketcher.Constraint("Horizontal", 1),
    Sketcher.Constraint("Vertical", 2),
    Sketcher.Constraint("Horizontal", 3),
    Sketcher.Constraint("Vertical", 4),
    Sketcher.Constraint("Horizontal", 5),
    Sketcher.Constraint("Vertical", 6),
    Sketcher.Constraint("Horizontal", 7),
    Sketcher.Constraint("Vertical", 8),
    Sketcher.Constraint("Horizontal", 9),
    Sketcher.Constraint("Vertical", 10),
    Sketcher.Constraint("Horizontal", 11),
    Sketcher.Constraint("Vertical", 12),
    Sketcher.Constraint("Horizontal", 13),
    Sketcher.Constraint("Vertical", 14),
    Sketcher.Constraint("Horizontal", 15),
    Sketcher.Constraint("Horizontal", 1, 2, 4, 2),
    Sketcher.Constraint("Horizontal", 3, 2, 6, 2),
    Sketcher.Constraint("Horizontal", 5, 2, 8, 2),
    Sketcher.Constraint("Horizontal", 7, 2, 10, 2),
    Sketcher.Constraint("Horizontal", 9, 2, 12, 2),
    Sketcher.Constraint("Horizontal", 11, 2, 14, 2),
    Sketcher.Constraint("Equal", 3, 5),
    Sketcher.Constraint("Equal", 7, 9),
    Sketcher.Constraint("Equal", 11, 13),
    Sketcher.Constraint("DistanceX", 1, 1, 1, 2, Q("0.5 mm")),
    Sketcher.Constraint("DistanceY", 2, 2, -1, 1, Q("3 mm")),
    Sketcher.Constraint("DistanceY", 0, 1, 0, 2, Q("5.54 mm")),
    Sketcher.Constraint("DistanceX", -1, 1, 0, 2, Q("5.22 mm")),
    Sketcher.Constraint("DistanceX", -1, 1, 4, 2, Q("7.76 mm")),
    Sketcher.Constraint("DistanceX", -1, 1, 8, 2, Q("2.68 mm")),
    Sketcher.Constraint("DistanceX", -1, 1, 12, 2, Q("0.14 mm")),
])
pad6 = doc.addObject("PartDesign::Pad", "Pad005")
body.addObject(pad6)
pad6.Profile = sketch13
pad6.Length = 1.45
pad6.Reversed = True
doc.recompute()

fillet2 = doc.addObject("PartDesign::Fillet", "Fillet001")
body.addObject(fillet2)
fillet2.Base = (pad6, edges_at(pad6, [
    (5.47, 12.85, 2.54),
    (2.93, 12.85, 2.54),
    (0.39, 12.85, 2.54),
    (8.01, 12.85, 2.54),
]))
fillet2.Radius = 1

# Sketch on YZ plane
sketch14 = doc.addObject("Sketcher::SketchObject", "Sketch013")
body.addObject(sketch14)
sketch14.AttachmentSupport = (doc.YZ_Plane, [""])
sketch14.MapMode = "FlatFace"
sketch14.AttachmentOffset = App.Placement(V(0, 0, 8.26), App.Rotation())
sketch14.addGeometry([
    Part.LineSegment(V(12.6, 1.54, 0), V(12.6, -3, 0)),  # 0
    Part.LineSegment(V(12.6, -3, 0), V(11.4, -3, 0)),  # 1
    Part.LineSegment(V(11.4, -3, 0), V(11.4, 2.29, 0)),  # 2
    Part.LineSegment(V(11.4, 2.29, 0), V(11.85, 2.29, 0)),  # 3
    Part.ArcOfCircle(Part.Circle(V(11.85, 1.54, 0), V(0, 0, 1), 0.75), math.radians(0), math.radians(90)),  # 4
], False)
sketch14.addConstraint([
    Sketcher.Constraint("Coincident", 0, 2, 1, 1),
    Sketcher.Constraint("Coincident", 1, 2, 2, 1),
    Sketcher.Constraint("Coincident", 2, 2, 3, 1),
    Sketcher.Constraint("Tangent", 3, 2, 4, 2),
    Sketcher.Constraint("Tangent", 4, 1, 0, 1),
    Sketcher.Constraint("Vertical", 0),
    Sketcher.Constraint("Horizontal", 1),
    Sketcher.Constraint("Vertical", 2),
    Sketcher.Constraint("Horizontal", 3),
    Sketcher.Constraint("Radius", 4, Q("0.75 mm")),
    Sketcher.Constraint("DistanceX", 1, 2, 1, 1, Q("1.2 mm")),
    Sketcher.Constraint("DistanceY", 0, 2, -1, 1, Q("3 mm")),
    Sketcher.Constraint("DistanceY", 0, 2, 0, 1, Q("4.54 mm")),
    Sketcher.Constraint("DistanceX", -1, 1, 0, 2, Q("12.6 mm")),
])
pocket8 = doc.addObject("PartDesign::Pocket", "Pocket007")
body.addObject(pocket8)
pocket8.Profile = sketch14
pocket8.Length = 8.12

# Sketch on YZ plane
sketch15 = doc.addObject("Sketcher::SketchObject", "Sketch014")
body.addObject(sketch15)
sketch15.AttachmentSupport = (doc.YZ_Plane, [""])
sketch15.MapMode = "FlatFace"
sketch15.AttachmentOffset = App.Placement(V(0, 0, 0.14), App.Rotation())
sketch15.addGeometry([
    Part.LineSegment(V(12.85, 0, 0), V(12.6, 0, 0)),
    Part.LineSegment(V(12.6, 0, 0), V(12.6, -3, 0)),
    Part.LineSegment(V(12.6, -3, 0), V(12.85, -3, 0)),
    Part.LineSegment(V(12.85, -3, 0), V(12.85, 0, 0)),
], False)
sketch15.addConstraint([
    Sketcher.Constraint("Coincident", 0, 2, 1, 1),
    Sketcher.Constraint("Coincident", 1, 2, 2, 1),
    Sketcher.Constraint("Coincident", 2, 2, 3, 1),
    Sketcher.Constraint("Coincident", 3, 2, 0, 1),
    Sketcher.Constraint("Horizontal", 0),
    Sketcher.Constraint("Vertical", 1),
    Sketcher.Constraint("Horizontal", 2),
    Sketcher.Constraint("Vertical", 3),
    Sketcher.Constraint("PointOnObject", 0, 2, -1),
    Sketcher.Constraint("DistanceY", 1, 2, 1, 1, Q("3 mm")),
    Sketcher.Constraint("DistanceX", 0, 2, 0, 1, Q("0.25 mm")),
    Sketcher.Constraint("DistanceX", -1, 1, 0, 2, Q("12.6 mm")),
])
pocket9 = doc.addObject("PartDesign::Pocket", "Pocket008")
body.addObject(pocket9)
pocket9.Profile = sketch15
pocket9.Length = 8.12
pocket9.Reversed = True

# Sketch on XZ plane
sketch16 = doc.addObject("Sketcher::SketchObject", "Sketch015")
body.addObject(sketch16)
sketch16.AttachmentSupport = (doc.XZ_Plane, [""])
sketch16.MapMode = "FlatFace"
sketch16.AttachmentOffset = App.Placement(V(0, 0, -12.85), App.Rotation())
sketch16.addGeometry([
    Part.LineSegment(V(7.76, 0, 0), V(7.76, 0.25, 0)),  # 0
    Part.LineSegment(V(7.76, 0.25, 0), V(8.26, 0.25, 0)),  # 1
    Part.LineSegment(V(8.26, 0.25, 0), V(8.26, 0, 0)),  # 2
    Part.LineSegment(V(8.26, 0, 0), V(7.76, 0, 0)),  # 3
    Part.LineSegment(V(5.22, 0, 0), V(5.22, 0.25, 0)),  # 4
    Part.LineSegment(V(5.22, 0.25, 0), V(5.72, 0.25, 0)),  # 5
    Part.LineSegment(V(5.72, 0.25, 0), V(5.72, 0, 0)),  # 6
    Part.LineSegment(V(5.72, 0, 0), V(5.22, 0, 0)),  # 7
    Part.LineSegment(V(2.68, 0, 0), V(2.68, 0.25, 0)),  # 8
    Part.LineSegment(V(2.68, 0.25, 0), V(3.18, 0.25, 0)),  # 9
    Part.LineSegment(V(3.18, 0.25, 0), V(3.18, 0, 0)),  # 10
    Part.LineSegment(V(3.18, 0, 0), V(2.68, 0, 0)),  # 11
    Part.LineSegment(V(0.14, 0, 0), V(0.14, 0.25, 0)),  # 12
    Part.LineSegment(V(0.14, 0.25, 0), V(0.64, 0.25, 0)),  # 13
    Part.LineSegment(V(0.64, 0.25, 0), V(0.64, 0, 0)),  # 14
    Part.LineSegment(V(0.64, 0, 0), V(0.14, 0, 0)),  # 15
], False)
sketch16.addConstraint([
    Sketcher.Constraint("Coincident", 0, 2, 1, 1),
    Sketcher.Constraint("Coincident", 1, 2, 2, 1),
    Sketcher.Constraint("Coincident", 2, 2, 3, 1),
    Sketcher.Constraint("Coincident", 3, 2, 0, 1),
    Sketcher.Constraint("Coincident", 4, 2, 5, 1),
    Sketcher.Constraint("Coincident", 5, 2, 6, 1),
    Sketcher.Constraint("Coincident", 6, 2, 7, 1),
    Sketcher.Constraint("Coincident", 7, 2, 4, 1),
    Sketcher.Constraint("Coincident", 8, 2, 9, 1),
    Sketcher.Constraint("Coincident", 9, 2, 10, 1),
    Sketcher.Constraint("Coincident", 10, 2, 11, 1),
    Sketcher.Constraint("Coincident", 11, 2, 8, 1),
    Sketcher.Constraint("Coincident", 12, 2, 13, 1),
    Sketcher.Constraint("Coincident", 13, 2, 14, 1),
    Sketcher.Constraint("Coincident", 14, 2, 15, 1),
    Sketcher.Constraint("Coincident", 15, 2, 12, 1),
    Sketcher.Constraint("Vertical", 0),
    Sketcher.Constraint("Horizontal", 1),
    Sketcher.Constraint("Vertical", 2),
    Sketcher.Constraint("Horizontal", 3),
    Sketcher.Constraint("Vertical", 4),
    Sketcher.Constraint("Horizontal", 5),
    Sketcher.Constraint("Vertical", 6),
    Sketcher.Constraint("Horizontal", 7),
    Sketcher.Constraint("Vertical", 8),
    Sketcher.Constraint("Horizontal", 9),
    Sketcher.Constraint("Vertical", 10),
    Sketcher.Constraint("Horizontal", 11),
    Sketcher.Constraint("Vertical", 12),
    Sketcher.Constraint("Horizontal", 13),
    Sketcher.Constraint("Vertical", 14),
    Sketcher.Constraint("Horizontal", 15),
    Sketcher.Constraint("PointOnObject", 2, 2, -1),
    Sketcher.Constraint("PointOnObject", 6, 2, -1),
    Sketcher.Constraint("PointOnObject", 10, 2, -1),
    Sketcher.Constraint("PointOnObject", 14, 2, -1),
    Sketcher.Constraint("Horizontal", 1, 2, 4, 2),
    Sketcher.Constraint("Horizontal", 5, 2, 8, 2),
    Sketcher.Constraint("Horizontal", 9, 2, 12, 2),
    Sketcher.Constraint("Equal", 3, 5),
    Sketcher.Constraint("Equal", 7, 9),
    Sketcher.Constraint("Equal", 11, 13),
    Sketcher.Constraint("DistanceX", 1, 1, 1, 2, Q("0.5 mm")),
    Sketcher.Constraint("DistanceY", 0, 1, 0, 2, Q("0.25 mm")),
    Sketcher.Constraint("DistanceX", -1, 1, 0, 2, Q("7.76 mm")),
    Sketcher.Constraint("DistanceX", -1, 1, 4, 2, Q("5.22 mm")),
    Sketcher.Constraint("DistanceX", -1, 1, 8, 2, Q("2.68 mm")),
    Sketcher.Constraint("DistanceX", -1, 1, 12, 2, Q("0.14 mm")),
])
pad7 = doc.addObject("PartDesign::Pad", "Pad006")
body.addObject(pad7)
pad7.Profile = sketch16
pad7.Length = 3
pad7.Reversed = True
doc.recompute()

fillet3 = doc.addObject("PartDesign::Fillet", "Fillet002")
body.addObject(fillet3)
fillet3.Base = (pad7, edges_at(pad7, [
    (8.01, 12.85, 0.25),
    (5.47, 12.85, 0.25),
    (2.93, 12.85, 0.25),
    (0.39, 12.85, 0.25),
]))
fillet3.Radius = 0.5
doc.recompute()

fillet4 = doc.addObject("PartDesign::Fillet", "Fillet003")
body.addObject(fillet4)
fillet4.Base = (fillet3, edges_at(fillet3, [
    (5.47, 12.6, 0),
    (2.93, 12.6, 0),
    (0.39, 12.6, 0),
    (8.01, 12.6, 0),
]))
fillet4.Radius = 0.75

doc.recompute()
